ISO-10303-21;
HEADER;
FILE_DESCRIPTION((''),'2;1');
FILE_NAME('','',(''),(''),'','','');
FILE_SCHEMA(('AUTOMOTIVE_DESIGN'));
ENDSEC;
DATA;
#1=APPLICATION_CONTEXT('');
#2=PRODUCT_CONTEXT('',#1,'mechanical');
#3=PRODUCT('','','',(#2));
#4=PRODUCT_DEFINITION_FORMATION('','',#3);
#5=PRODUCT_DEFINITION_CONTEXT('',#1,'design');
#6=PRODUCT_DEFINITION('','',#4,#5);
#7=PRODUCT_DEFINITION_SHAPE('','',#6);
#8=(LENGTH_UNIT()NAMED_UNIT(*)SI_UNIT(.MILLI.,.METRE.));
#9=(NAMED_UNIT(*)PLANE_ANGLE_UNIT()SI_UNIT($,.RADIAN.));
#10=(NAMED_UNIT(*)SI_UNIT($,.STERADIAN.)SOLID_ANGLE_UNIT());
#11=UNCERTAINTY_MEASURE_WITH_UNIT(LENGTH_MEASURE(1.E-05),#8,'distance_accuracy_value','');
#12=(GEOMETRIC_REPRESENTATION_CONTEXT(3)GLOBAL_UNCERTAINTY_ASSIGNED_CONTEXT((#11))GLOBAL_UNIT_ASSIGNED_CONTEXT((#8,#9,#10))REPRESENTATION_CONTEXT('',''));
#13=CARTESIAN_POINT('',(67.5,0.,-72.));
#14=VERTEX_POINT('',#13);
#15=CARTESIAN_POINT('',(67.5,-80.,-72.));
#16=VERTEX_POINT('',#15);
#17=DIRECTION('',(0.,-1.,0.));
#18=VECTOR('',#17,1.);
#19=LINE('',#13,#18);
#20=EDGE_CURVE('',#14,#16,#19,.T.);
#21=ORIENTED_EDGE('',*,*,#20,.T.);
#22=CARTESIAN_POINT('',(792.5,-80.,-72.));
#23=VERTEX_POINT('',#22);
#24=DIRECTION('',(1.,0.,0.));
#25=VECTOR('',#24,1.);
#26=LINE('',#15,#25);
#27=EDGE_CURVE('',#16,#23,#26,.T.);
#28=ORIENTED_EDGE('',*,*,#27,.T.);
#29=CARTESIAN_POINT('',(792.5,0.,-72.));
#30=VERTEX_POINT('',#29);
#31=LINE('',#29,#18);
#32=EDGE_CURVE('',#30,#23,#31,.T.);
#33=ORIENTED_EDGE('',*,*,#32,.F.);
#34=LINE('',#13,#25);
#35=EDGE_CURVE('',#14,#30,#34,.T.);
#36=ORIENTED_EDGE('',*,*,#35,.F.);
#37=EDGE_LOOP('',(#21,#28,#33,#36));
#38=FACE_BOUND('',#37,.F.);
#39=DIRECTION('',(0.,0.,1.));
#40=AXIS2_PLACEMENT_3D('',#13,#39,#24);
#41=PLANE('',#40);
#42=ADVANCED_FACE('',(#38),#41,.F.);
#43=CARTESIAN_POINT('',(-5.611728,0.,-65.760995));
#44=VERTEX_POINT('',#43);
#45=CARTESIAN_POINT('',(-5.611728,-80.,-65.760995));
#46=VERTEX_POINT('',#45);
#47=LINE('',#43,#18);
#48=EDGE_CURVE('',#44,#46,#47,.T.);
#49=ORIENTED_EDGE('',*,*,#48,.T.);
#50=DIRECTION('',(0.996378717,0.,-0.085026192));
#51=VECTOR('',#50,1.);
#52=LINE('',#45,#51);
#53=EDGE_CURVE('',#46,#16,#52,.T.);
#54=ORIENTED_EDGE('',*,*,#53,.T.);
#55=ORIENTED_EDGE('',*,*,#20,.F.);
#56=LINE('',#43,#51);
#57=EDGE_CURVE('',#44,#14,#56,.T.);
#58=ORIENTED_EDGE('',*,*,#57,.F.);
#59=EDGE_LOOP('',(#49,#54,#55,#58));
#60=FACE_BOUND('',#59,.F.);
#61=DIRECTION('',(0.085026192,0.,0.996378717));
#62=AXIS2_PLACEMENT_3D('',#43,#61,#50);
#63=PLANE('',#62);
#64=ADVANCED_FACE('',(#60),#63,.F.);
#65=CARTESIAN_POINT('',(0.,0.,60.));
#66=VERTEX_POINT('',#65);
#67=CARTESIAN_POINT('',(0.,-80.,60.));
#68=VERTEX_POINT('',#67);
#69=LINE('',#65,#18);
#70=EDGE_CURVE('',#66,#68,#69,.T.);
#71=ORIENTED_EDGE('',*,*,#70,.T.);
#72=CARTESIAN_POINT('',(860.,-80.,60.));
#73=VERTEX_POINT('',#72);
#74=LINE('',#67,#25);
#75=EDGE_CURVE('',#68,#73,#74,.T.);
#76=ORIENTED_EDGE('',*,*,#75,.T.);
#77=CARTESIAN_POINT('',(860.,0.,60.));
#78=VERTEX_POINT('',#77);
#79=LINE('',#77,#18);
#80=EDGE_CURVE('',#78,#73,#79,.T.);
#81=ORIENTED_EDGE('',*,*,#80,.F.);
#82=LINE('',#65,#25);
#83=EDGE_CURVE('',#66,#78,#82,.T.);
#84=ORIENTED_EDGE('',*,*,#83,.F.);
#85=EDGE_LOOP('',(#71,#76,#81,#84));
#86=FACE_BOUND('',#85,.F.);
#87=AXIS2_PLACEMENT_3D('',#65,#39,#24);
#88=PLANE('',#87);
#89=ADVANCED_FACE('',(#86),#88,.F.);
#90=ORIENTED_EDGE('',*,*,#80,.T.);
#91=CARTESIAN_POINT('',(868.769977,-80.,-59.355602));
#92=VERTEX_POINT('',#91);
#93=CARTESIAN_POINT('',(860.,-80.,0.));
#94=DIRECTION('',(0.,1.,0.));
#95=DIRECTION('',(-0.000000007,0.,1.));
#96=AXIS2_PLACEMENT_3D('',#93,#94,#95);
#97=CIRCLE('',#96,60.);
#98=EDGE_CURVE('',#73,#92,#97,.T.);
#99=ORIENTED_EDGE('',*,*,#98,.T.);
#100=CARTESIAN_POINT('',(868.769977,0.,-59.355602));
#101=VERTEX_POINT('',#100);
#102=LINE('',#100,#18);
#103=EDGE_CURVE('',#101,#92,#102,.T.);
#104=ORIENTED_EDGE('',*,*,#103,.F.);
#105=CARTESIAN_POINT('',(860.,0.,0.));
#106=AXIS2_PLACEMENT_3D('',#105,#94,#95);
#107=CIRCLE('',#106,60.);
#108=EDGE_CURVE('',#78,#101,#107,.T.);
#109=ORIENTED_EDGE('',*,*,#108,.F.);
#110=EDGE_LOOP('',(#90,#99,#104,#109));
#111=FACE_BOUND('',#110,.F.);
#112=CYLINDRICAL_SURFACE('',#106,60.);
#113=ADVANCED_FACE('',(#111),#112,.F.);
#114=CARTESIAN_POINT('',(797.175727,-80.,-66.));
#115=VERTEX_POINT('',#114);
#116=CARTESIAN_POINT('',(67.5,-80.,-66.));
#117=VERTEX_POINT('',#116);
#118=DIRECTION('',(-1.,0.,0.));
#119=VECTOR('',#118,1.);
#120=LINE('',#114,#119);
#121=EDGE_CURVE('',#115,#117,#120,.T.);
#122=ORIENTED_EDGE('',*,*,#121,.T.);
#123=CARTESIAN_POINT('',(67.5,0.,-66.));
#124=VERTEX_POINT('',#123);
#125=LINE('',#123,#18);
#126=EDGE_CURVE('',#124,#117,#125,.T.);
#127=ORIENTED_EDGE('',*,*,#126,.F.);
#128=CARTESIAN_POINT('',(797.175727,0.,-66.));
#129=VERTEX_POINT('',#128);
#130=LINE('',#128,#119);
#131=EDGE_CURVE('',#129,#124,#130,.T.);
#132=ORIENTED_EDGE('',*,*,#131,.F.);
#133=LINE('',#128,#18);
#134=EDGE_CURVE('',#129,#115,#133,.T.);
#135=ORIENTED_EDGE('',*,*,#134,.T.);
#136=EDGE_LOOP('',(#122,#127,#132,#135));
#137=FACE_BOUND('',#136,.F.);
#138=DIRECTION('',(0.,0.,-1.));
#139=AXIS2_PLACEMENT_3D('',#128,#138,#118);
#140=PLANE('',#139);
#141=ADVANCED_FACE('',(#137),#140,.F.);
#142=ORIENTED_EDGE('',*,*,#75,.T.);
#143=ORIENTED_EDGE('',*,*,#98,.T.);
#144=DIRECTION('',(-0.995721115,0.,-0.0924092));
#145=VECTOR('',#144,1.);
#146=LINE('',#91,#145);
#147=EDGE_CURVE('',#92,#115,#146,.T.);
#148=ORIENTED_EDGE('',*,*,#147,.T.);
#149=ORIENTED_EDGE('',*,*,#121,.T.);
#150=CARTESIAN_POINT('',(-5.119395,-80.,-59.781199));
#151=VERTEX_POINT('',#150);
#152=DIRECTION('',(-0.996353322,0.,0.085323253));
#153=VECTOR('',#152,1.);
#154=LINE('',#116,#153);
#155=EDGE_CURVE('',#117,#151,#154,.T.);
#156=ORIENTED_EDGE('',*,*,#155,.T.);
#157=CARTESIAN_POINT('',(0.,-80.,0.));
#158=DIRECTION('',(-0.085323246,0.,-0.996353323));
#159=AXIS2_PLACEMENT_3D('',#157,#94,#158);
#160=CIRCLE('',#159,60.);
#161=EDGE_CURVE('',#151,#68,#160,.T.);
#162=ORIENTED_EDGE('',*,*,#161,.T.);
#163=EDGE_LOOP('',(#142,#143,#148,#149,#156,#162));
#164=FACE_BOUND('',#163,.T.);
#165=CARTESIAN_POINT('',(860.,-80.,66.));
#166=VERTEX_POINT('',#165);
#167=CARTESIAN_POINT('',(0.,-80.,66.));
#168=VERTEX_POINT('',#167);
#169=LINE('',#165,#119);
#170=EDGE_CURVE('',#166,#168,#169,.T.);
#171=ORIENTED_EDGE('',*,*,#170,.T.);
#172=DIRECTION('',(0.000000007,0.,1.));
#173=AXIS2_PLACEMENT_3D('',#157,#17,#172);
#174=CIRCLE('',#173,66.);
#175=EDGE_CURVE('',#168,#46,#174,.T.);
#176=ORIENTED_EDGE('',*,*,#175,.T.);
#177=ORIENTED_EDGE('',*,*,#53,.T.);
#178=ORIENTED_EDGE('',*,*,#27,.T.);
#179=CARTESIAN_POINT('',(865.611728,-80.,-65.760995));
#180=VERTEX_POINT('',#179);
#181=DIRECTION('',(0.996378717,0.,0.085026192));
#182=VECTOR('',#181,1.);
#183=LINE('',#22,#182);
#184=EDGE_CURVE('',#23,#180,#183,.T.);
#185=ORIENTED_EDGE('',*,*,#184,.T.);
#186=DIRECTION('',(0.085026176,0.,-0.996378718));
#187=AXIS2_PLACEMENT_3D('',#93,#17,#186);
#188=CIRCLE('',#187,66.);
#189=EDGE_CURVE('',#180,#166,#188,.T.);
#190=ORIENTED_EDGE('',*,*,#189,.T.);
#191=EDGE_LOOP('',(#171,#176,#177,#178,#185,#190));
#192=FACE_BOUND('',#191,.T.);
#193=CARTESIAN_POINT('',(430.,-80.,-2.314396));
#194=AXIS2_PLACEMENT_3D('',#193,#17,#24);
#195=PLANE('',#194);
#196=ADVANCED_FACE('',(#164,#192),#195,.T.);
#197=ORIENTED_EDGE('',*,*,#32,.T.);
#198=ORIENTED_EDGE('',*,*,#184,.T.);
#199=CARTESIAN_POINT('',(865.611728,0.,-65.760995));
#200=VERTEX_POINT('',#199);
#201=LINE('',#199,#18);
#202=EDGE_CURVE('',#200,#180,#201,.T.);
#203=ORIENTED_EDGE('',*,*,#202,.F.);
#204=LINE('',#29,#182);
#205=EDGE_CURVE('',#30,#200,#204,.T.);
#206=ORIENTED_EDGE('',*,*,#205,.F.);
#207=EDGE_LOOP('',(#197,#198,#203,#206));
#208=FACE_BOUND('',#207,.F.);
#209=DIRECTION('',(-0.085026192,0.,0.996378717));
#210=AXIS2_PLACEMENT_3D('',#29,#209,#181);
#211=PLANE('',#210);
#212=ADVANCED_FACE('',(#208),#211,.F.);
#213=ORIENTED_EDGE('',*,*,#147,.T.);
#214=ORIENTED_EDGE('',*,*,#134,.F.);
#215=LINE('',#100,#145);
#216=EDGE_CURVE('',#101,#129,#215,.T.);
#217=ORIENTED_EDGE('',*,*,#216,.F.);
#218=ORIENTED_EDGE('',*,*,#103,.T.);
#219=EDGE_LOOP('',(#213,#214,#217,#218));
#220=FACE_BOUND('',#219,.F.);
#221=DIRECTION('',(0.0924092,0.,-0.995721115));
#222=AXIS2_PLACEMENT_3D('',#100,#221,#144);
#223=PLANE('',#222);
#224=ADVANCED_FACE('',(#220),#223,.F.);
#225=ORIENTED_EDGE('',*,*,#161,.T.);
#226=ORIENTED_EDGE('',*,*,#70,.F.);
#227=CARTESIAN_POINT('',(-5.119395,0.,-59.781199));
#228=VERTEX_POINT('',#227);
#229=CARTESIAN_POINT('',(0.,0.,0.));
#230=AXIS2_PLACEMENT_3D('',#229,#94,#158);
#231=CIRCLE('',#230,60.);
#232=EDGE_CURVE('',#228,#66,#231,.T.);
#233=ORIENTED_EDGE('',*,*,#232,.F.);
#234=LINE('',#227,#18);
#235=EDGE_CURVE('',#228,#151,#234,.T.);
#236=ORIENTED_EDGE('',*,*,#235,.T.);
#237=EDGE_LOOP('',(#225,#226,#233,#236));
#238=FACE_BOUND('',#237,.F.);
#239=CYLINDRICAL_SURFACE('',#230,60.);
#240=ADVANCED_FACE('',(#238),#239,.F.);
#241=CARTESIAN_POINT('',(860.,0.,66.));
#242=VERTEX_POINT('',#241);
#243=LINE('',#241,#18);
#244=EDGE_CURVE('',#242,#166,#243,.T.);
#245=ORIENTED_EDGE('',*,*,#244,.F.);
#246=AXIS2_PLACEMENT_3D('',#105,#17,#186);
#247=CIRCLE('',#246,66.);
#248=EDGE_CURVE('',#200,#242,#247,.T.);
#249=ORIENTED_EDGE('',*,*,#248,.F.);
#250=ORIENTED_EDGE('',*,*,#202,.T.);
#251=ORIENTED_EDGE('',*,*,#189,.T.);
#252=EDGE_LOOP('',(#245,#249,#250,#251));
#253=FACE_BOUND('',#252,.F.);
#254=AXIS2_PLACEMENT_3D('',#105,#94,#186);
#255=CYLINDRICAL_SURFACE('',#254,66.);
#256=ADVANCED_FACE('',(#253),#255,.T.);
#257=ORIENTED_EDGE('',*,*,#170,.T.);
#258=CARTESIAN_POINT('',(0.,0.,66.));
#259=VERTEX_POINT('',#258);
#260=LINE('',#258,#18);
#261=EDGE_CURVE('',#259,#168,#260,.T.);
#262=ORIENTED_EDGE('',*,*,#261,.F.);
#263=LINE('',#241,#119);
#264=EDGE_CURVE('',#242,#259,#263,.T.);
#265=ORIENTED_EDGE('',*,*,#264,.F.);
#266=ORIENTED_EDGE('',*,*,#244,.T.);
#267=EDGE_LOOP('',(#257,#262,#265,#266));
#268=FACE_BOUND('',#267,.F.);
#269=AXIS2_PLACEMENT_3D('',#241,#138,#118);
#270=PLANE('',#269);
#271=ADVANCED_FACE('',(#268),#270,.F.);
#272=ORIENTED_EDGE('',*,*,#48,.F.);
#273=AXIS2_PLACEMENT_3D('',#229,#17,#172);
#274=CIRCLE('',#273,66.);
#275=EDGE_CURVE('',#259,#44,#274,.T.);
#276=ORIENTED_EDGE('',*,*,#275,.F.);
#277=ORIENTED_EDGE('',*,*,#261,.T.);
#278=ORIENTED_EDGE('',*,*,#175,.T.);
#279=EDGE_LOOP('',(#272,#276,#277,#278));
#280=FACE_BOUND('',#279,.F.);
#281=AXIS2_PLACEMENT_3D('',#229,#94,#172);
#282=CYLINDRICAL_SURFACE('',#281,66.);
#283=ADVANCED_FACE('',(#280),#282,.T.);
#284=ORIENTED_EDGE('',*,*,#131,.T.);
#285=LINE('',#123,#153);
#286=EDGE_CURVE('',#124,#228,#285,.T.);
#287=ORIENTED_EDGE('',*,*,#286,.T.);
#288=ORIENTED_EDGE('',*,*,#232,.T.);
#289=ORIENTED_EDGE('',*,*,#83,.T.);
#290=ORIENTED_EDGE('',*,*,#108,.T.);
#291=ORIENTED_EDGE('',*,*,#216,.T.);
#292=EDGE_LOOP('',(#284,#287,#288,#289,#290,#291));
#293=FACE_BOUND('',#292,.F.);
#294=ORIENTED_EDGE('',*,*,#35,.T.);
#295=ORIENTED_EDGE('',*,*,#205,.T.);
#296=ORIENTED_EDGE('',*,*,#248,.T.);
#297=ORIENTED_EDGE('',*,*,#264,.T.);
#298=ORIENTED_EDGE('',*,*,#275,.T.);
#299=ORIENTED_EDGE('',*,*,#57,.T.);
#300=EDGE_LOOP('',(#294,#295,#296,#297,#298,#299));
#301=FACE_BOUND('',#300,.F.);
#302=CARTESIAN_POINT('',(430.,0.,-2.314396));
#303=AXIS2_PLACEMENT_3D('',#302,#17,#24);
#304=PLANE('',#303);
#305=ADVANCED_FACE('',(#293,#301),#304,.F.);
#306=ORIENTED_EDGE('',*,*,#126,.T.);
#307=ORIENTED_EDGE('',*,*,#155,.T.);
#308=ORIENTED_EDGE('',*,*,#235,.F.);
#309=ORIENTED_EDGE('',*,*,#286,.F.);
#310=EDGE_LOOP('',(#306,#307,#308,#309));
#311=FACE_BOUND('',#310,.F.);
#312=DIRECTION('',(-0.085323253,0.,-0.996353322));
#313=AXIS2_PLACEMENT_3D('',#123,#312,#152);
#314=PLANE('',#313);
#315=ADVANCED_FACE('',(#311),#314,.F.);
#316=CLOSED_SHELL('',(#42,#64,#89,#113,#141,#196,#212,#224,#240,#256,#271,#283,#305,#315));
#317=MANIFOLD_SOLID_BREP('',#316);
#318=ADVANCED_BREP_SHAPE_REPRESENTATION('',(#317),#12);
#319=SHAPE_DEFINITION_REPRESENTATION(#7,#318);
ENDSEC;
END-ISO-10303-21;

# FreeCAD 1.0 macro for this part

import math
import FreeCAD as App
import Part
import Sketcher

V = App.Vector
Q = App.Units.Quantity

doc = App.newDocument("Part")
params = doc.addObject("Spreadsheet::Sheet", "Params")
for row, (alias, value) in enumerate([
    ("sketch1_radius", "66 mm"),
    ("sketch1_radius2", "60 mm"),
    ("sketch1_width", "860 mm"),
    ("sketch1_width2", "725 mm"),
    ("pad1_length", "80 mm"),
], start=1):
    params.set(f"A{row}", alias)
    params.set(f"B{row}", "=" + value)
    params.setAlias(f"B{row}", alias)

body = doc.addObject("PartDesign::Body", "Body")

# Sketch on XZ plane
sketch1 = doc.addObject("Sketcher::SketchObject", "Sketch")
body.addObject(sketch1)
sketch1.AttachmentSupport = (doc.XZ_Plane, [""])
sketch1.MapMode = "FlatFace"
sketch1.addGeometry([
    Part.LineSegment(V(860, 66, 0), V(0, 66, 0)),  # 0
    Part.ArcOfCircle(Part.Circle(V(0, 0, 0), V(0, 0, 1), 66), math.radians(90), math.radians(265.12247)),  # 1
    Part.LineSegment(V(-5.611728, -65.760995, 0), V(67.5, -72, 0)),  # 2
    Part.LineSegment(V(67.5, -72, 0), V(792.5, -72, 0)),  # 3
    Part.LineSegment(V(792.5, -72, 0), V(865.611728, -65.760995, 0)),  # 4
    Part.ArcOfCircle(Part.Circle(V(860, 0, 0), V(0, 0, 1), 66), math.radians(-85.12247), math.radians(90)),  # 5
    Part.LineSegment(V(67.5, -66, 0), V(-5.119395, -59.781199, 0)),  # 6
    Part.ArcOfCircle(Part.Circle(V(0, 0, 0), V(0, 0, 1), 60), math.radians(90), math.radians(265.105387)),  # 7
    Part.LineSegment(V(0, 60, 0), V(860, 60, 0)),  # 8
    Part.ArcOfCircle(Part.Circle(V(860, 0, 0), V(0, 0, 1), 60), math.radians(-81.595178), math.radians(90)),  # 9
    Part.LineSegment(V(868.769977, -59.355602, 0), V(797.175727, -66, 0)),  # 10
    Part.LineSegment(V(797.175727, -66, 0), V(67.5, -66, 0)),  # 11
], False)
sketch1.addConstraint([
    Sketcher.Constraint("Tangent", 0, 2, 1, 1),
    Sketcher.Constraint("Tangent", 1, 2, 2, 1),
    Sketcher.Constraint("Coincident", 2, 2, 3, 1),
    Sketcher.Constraint("Coincident", 3, 2, 4, 1),
    Sketcher.Constraint("Tangent", 4, 2, 5, 1),
    Sketcher.Constraint("Tangent", 5, 2, 0, 1),
    Sketcher.Constraint("Tangent", 6, 2, 7, 2),
    Sketcher.Constraint("Tangent", 7, 1, 8, 1),
    Sketcher.Constraint("Tangent", 8, 2, 9, 2),
    Sketcher.Constraint("Coincident", 9, 1, 10, 1),
    Sketcher.Constraint("Coincident", 10, 2, 11, 1),
    Sketcher.Constraint("Coincident", 11, 2, 6, 1),
    Sketcher.Constraint("Horizontal", 0),
    Sketcher.Constraint("Horizontal", 3),
    Sketcher.Constraint("Horizontal", 8),
    Sketcher.Constraint("Horizontal", 11),
    Sketcher.Constraint("Coincident", 1, 3, -1, 1),
    Sketcher.Constraint("Coincident", 7, 3, -1, 1),
    Sketcher.Constraint("Coincident", 9, 3, 5, 3),
    Sketcher.Constraint("Equal", 1, 5),
    Sketcher.Constraint("Vertical", 2, 2, 11, 2),
    Sketcher.Constraint("Equal", 2, 4),
    Sketcher.Constraint("Radius", 1, Q("66 mm")),
    Sketcher.Constraint("Radius", 7, Q("60 mm")),
    Sketcher.Constraint("DistanceX", 0, 2, 0, 1, Q("860 mm")),
    Sketcher.Constraint("DistanceX", 3, 1, 3, 2, Q("725 mm")),
    Sketcher.Constraint("DistanceY", 2, 2, -1, 1, Q("72 mm")),
    Sketcher.Constraint("DistanceY", 10, 2, -1, 1, Q("66 mm")),
    Sketcher.Constraint("DistanceX", 10, 2, 4, 2, Q("68.436001 mm")),
    Sketcher.Constraint("DistanceY", 9, 1, -1, 1, Q("59.355602 mm")),
])
sketch1.setExpression("Constraints[22]", "Params.sketch1_radius")
sketch1.setExpression("Constraints[23]", "Params.sketch1_radius2")
sketch1.setExpression("Constraints[24]", "Params.sketch1_width")
sketch1.setExpression("Constraints[25]", "Params.sketch1_width2")
pad1 = doc.addObject("PartDesign::Pad", "Pad")
body.addObject(pad1)
pad1.Profile = sketch1
pad1.setExpression("Length", "Params.pad1_length")

doc.recompute()
